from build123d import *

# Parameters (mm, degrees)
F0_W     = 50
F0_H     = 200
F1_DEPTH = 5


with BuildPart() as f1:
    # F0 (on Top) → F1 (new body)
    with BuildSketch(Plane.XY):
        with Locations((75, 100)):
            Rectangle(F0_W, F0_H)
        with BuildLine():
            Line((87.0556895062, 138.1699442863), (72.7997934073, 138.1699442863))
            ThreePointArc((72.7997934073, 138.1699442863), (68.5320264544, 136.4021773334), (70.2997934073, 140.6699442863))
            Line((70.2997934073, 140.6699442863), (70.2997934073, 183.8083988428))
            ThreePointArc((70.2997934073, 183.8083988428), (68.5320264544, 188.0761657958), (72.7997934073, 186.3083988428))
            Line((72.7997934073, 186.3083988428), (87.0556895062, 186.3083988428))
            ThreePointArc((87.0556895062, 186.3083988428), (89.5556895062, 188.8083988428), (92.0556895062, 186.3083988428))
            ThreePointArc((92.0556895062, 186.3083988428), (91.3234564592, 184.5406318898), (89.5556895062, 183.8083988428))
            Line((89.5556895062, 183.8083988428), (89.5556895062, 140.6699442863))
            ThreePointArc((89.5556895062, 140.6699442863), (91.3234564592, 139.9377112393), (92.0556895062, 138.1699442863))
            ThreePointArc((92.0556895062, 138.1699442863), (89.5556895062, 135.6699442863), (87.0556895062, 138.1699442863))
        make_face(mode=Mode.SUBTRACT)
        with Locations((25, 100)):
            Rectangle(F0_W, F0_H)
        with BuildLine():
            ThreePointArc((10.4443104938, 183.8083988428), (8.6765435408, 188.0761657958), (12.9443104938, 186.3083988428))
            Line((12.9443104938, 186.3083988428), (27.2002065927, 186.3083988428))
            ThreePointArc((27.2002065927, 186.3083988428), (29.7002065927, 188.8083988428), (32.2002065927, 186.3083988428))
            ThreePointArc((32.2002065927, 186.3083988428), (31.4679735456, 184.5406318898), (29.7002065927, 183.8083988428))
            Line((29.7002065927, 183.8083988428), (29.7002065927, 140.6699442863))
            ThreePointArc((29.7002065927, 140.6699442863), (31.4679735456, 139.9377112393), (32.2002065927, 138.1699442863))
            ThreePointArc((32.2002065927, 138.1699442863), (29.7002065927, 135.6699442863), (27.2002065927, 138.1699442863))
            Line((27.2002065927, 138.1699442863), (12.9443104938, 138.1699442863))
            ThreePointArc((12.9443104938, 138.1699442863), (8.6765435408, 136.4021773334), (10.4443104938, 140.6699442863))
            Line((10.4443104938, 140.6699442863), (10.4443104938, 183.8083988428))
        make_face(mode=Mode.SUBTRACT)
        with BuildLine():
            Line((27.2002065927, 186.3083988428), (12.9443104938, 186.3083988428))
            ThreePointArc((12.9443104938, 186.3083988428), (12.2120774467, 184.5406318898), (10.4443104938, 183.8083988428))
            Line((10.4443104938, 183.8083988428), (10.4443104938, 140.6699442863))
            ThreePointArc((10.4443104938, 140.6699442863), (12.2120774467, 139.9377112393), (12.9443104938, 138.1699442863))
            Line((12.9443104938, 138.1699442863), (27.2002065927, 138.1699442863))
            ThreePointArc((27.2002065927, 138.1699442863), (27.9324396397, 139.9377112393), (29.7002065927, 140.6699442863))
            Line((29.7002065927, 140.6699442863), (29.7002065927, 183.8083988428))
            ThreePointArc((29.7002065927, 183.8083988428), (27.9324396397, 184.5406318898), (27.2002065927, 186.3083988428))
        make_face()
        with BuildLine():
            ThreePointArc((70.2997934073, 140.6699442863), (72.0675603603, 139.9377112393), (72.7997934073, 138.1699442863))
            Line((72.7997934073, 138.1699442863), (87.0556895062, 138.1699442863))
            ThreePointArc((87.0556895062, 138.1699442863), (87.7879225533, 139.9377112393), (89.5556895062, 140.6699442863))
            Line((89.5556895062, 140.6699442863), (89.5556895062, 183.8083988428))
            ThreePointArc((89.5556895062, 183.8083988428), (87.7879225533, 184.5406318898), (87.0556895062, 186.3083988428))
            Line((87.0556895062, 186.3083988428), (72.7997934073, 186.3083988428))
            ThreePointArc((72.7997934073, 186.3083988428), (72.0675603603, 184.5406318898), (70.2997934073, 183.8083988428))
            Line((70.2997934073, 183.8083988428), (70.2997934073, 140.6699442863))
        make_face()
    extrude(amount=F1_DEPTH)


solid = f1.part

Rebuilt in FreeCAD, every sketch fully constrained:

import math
import FreeCAD as App
import Part
import Sketcher
from FreeCAD import Vector
Q = App.Units.Quantity

doc = App.newDocument("Part")
body = doc.addObject("PartDesign::Body", "Body")

# Sketch on XY plane
sketch1 = body.newObject("Sketcher::SketchObject", "Sketch")
sketch1.AttachmentSupport = (doc.getObject("XY_Plane"), [""])
sketch1.MapMode = "FlatFace"
sketch1.addGeometry([
    Part.LineSegment(Vector(100, 0, 0), Vector(100, 200, 0)),  # 0
    Part.LineSegment(Vector(100, 200, 0), Vector(0, 200, 0)),  # 1
    Part.LineSegment(Vector(0, 200, 0), Vector(0, 0, 0)),  # 2
    Part.LineSegment(Vector(0, 0, 0), Vector(100, 0, 0)),  # 3
    Part.ArcOfCircle(Part.Circle(Vector(89.6, 138.2, 0), Vector(0, 0, 1), 2.5), math.radians(180), math.radians(360)),  # 4
    Part.ArcOfCircle(Part.Circle(Vector(89.6, 138.2, 0), Vector(0, 0, 1), 2.5), math.radians(90), math.radians(180)),  # 5
    Part.ArcOfCircle(Part.Circle(Vector(89.6, 138.2, 0), Vector(0, 0, 1), 2.5), math.radians(0), math.radians(90)),  # 6
    Part.ArcOfCircle(Part.Circle(Vector(70.3, 138.2, 0), Vector(0, 0, 1), 2.5), math.radians(90), math.radians(360)),  # 7
    Part.ArcOfCircle(Part.Circle(Vector(70.3, 138.2, 0), Vector(0, 0, 1), 2.5), math.radians(0), math.radians(90)),  # 8
    Part.ArcOfCircle(Part.Circle(Vector(70.3, 186.3, 0), Vector(0, 0, 1), 2.5), math.radians(0), math.radians(270)),  # 9
    Part.ArcOfCircle(Part.Circle(Vector(70.3, 186.3, 0), Vector(0, 0, 1), 2.5), math.radians(-90), math.radians(0)),  # 10
    Part.ArcOfCircle(Part.Circle(Vector(89.6, 186.3, 0), Vector(0, 0, 1), 2.5), math.radians(0), math.radians(180)),  # 11
    Part.ArcOfCircle(Part.Circle(Vector(89.6, 186.3, 0), Vector(0, 0, 1), 2.5), math.radians(-90), math.radians(0)),  # 12
    Part.ArcOfCircle(Part.Circle(Vector(89.6, 186.3, 0), Vector(0, 0, 1), 2.5), math.radians(180), math.radians(270)),  # 13
    Part.ArcOfCircle(Part.Circle(Vector(10.4, 138.2, 0), Vector(0, 0, 1), 2.5), math.radians(90), math.radians(360)),  # 14
    Part.ArcOfCircle(Part.Circle(Vector(10.4, 138.2, 0), Vector(0, 0, 1), 2.5), math.radians(0), math.radians(90)),  # 15
    Part.ArcOfCircle(Part.Circle(Vector(29.7, 138.2, 0), Vector(0, 0, 1), 2.5), math.radians(180), math.radians(360)),  # 16
    Part.ArcOfCircle(Part.Circle(Vector(29.7, 138.2, 0), Vector(0, 0, 1), 2.5), math.radians(90), math.radians(180)),  # 17
    Part.ArcOfCircle(Part.Circle(Vector(29.7, 138.2, 0), Vector(0, 0, 1), 2.5), math.radians(0), math.radians(90)),  # 18
    Part.ArcOfCircle(Part.Circle(Vector(29.7, 186.3, 0), Vector(0, 0, 1), 2.5), math.radians(-90), math.radians(0)),  # 19
    Part.ArcOfCircle(Part.Circle(Vector(29.7, 186.3, 0), Vector(0, 0, 1), 2.5), math.radians(180), math.radians(270)),  # 20
    Part.ArcOfCircle(Part.Circle(Vector(29.7, 186.3, 0), Vector(0, 0, 1), 2.5), math.radians(0), math.radians(180)),  # 21
    Part.ArcOfCircle(Part.Circle(Vector(10.4, 186.3, 0), Vector(0, 0, 1), 2.5), math.radians(0), math.radians(270)),  # 22
    Part.ArcOfCircle(Part.Circle(Vector(10.4, 186.3, 0), Vector(0, 0, 1), 2.5), math.radians(-90), math.radians(0)),  # 23
], False)
sketch1.addConstraint([
    Sketcher.Constraint("Coincident", 0, 2, 1, 1),
    Sketcher.Constraint("Coincident", 1, 2, 2, 1),
    Sketcher.Constraint("Coincident", 2, 2, 3, 1),
    Sketcher.Constraint("Coincident", 3, 2, 0, 1),
    Sketcher.Constraint("Tangent", 4, 1, 5, 2),
    Sketcher.Constraint("Tangent", 5, 1, 6, 2),
    Sketcher.Constraint("Tangent", 6, 1, 4, 2),
    Sketcher.Constraint("Tangent", 7, 1, 8, 2),
    Sketcher.Constraint("Coincident", 8, 1, 7, 2),
    Sketcher.Constraint("Tangent", 9, 1, 10, 2),
    Sketcher.Constraint("Coincident", 10, 1, 9, 2),
    Sketcher.Constraint("Tangent", 11, 1, 12, 2),
    Sketcher.Constraint("Tangent", 12, 1, 13, 2),
    Sketcher.Constraint("Tangent", 13, 1, 11, 2),
    Sketcher.Constraint("Tangent", 14, 1, 15, 2),
    Sketcher.Constraint("Coincident", 15, 1, 14, 2),
    Sketcher.Constraint("Tangent", 16, 1, 17, 2),
    Sketcher.Constraint("Tangent", 17, 1, 18, 2),
    Sketcher.Constraint("Tangent", 18, 1, 16, 2),
    Sketcher.Constraint("Tangent", 19, 1, 20, 2),
    Sketcher.Constraint("Tangent", 20, 1, 21, 2),
    Sketcher.Constraint("Tangent", 21, 1, 19, 2),
    Sketcher.Constraint("Tangent", 22, 1, 23, 2),
    Sketcher.Constraint("Coincident", 23, 1, 22, 2),
    Sketcher.Constraint("Vertical", 0),
    Sketcher.Constraint("Horizontal", 1),
    Sketcher.Constraint("Vertical", 2),
    Sketcher.Constraint("Horizontal", 3),
    Sketcher.Constraint("Coincident", 2, 2, -1, 1),
    Sketcher.Constraint("Equal", 6, 7),
    Sketcher.Constraint("Equal", 8, 9),
    Sketcher.Constraint("Equal", 10, 11),
    Sketcher.Constraint("Equal", 13, 14),
    Sketcher.Constraint("Equal", 15, 16),
    Sketcher.Constraint("Equal", 18, 19),
    Sketcher.Constraint("Equal", 21, 22),
    Sketcher.Constraint("Horizontal", 6, 3, 7, 3),
    Sketcher.Constraint("Horizontal", 10, 3, 11, 3),
    Sketcher.Constraint("Horizontal", 8, 3, 14, 3),
    Sketcher.Constraint("Horizontal", 15, 3, 16, 3),
    Sketcher.Constraint("Horizontal", 13, 3, 19, 3),
    Sketcher.Constraint("Horizontal", 21, 3, 22, 3),
    Sketcher.Constraint("Horizontal", 18, 3, 4, 1),
    Sketcher.Constraint("Horizontal", 4, 1, 6, 1),
    Sketcher.Constraint("Horizontal", 6, 1, 8, 1),
    Sketcher.Constraint("Horizontal", 23, 3, 9, 1),
    Sketcher.Constraint("Horizontal", 9, 1, 11, 1),
    Sketcher.Constraint("Horizontal", 11, 1, 13, 1),
    Sketcher.Constraint("Horizontal", 8, 1, 15, 1),
    Sketcher.Constraint("Horizontal", 15, 1, 16, 1),
    Sketcher.Constraint("Horizontal", 16, 1, 18, 1),
    Sketcher.Constraint("Horizontal", 13, 1, 20, 1),
    Sketcher.Constraint("Horizontal", 20, 1, 21, 1),
    Sketcher.Constraint("Horizontal", 21, 1, 22, 1),
    Sketcher.Constraint("Vertical", 8, 3, 9, 3),
    Sketcher.Constraint("Vertical", 6, 3, 11, 3),
    Sketcher.Constraint("Vertical", 18, 3, 19, 3),
    Sketcher.Constraint("Vertical", 15, 3, 22, 3),
    Sketcher.Constraint("Vertical", 13, 3, 5, 1),
    Sketcher.Constraint("Vertical", 10, 3, 7, 1),
    Sketcher.Constraint("Vertical", 7, 1, 10, 1),
    Sketcher.Constraint("Vertical", 5, 1, 12, 1),
    Sketcher.Constraint("Vertical", 23, 3, 14, 1),
    Sketcher.Constraint("Vertical", 21, 3, 17, 1),
    Sketcher.Constraint("Vertical", 17, 1, 19, 1),
    Sketcher.Constraint("Vertical", 14, 1, 23, 1),
    Sketcher.Constraint("Radius", 4, Q("2.5 mm")),
    Sketcher.Constraint("DistanceX", 1, 2, 1, 1, Q("100 mm")),
    Sketcher.Constraint("DistanceY", 0, 1, 0, 2, Q("200 mm")),
    Sketcher.Constraint("DistanceY", -1, 1, 9, 3, Q("186.308399 mm")),
    Sketcher.Constraint("DistanceX", -1, 1, 4, 3, Q("89.55569 mm")),
    Sketcher.Constraint("DistanceX", -1, 1, 14, 3, Q("10.44431 mm")),
    Sketcher.Constraint("DistanceY", -1, 1, 4, 3, Q("138.169944 mm")),
    Sketcher.Constraint("DistanceX", -1, 1, 7, 3, Q("70.299793 mm")),
    Sketcher.Constraint("DistanceX", -1, 1, 16, 3, Q("29.700207 mm")),
])
pad1 = body.newObject("PartDesign::Pad", "Pad")
pad1.Profile = sketch1
pad1.Length = 5

doc.recompute()
